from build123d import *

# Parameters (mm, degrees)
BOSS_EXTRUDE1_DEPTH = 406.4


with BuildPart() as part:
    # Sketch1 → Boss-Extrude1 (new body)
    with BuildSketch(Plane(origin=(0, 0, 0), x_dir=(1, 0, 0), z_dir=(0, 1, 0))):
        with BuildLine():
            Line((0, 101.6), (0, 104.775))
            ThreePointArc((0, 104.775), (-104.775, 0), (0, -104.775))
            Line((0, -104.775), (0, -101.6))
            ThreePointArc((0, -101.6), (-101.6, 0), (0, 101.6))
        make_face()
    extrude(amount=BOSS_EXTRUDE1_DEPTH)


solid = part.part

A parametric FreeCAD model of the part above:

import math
import FreeCAD as App
import Part
import Sketcher

V = App.Vector
Q = App.Units.Quantity

doc = App.newDocument("Part")
body = doc.addObject("PartDesign::Body", "Body")

# Sketch on XZ plane
sketch1 = body.newObject("Sketcher::SketchObject", "Sketch")
sketch1.AttachmentSupport = (doc.getObject("XZ_Plane"), [""])
sketch1.MapMode = "FlatFace"
sketch1.addGeometry(Part.LineSegment(V(0, -101.6, 0), V(0, -104.8, 0)), False)
sketch1.addGeometry(Part.ArcOfCircle(Part.Circle(V(0, 0, 0), V(0, 0, 1), 104.8), math.radians(90), math.radians(270)), False)
sketch1.addGeometry(Part.LineSegment(V(0, 104.8, 0), V(0, 101.6, 0)), False)
sketch1.addGeometry(Part.ArcOfCircle(Part.Circle(V(0, 0, 0), V(0, 0, 1), 101.6), math.radians(90), math.radians(270)), False)
sketch1.addConstraint(Sketcher.Constraint("Coincident", 0, 2, 1, 2))
sketch1.addConstraint(Sketcher.Constraint("Coincident", 1, 1, 2, 1))
sketch1.addConstraint(Sketcher.Constraint("Coincident", 2, 2, 3, 1))
sketch1.addConstraint(Sketcher.Constraint("Coincident", 3, 2, 0, 1))
sketch1.addConstraint(Sketcher.Constraint("Vertical", 0))
sketch1.addConstraint(Sketcher.Constraint("Vertical", 2))
sketch1.addConstraint(Sketcher.Constraint("Coincident", 1, 3, -1, 1))
sketch1.addConstraint(Sketcher.Constraint("Coincident", 3, 3, -1, 1))
sketch1.addConstraint(Sketcher.Constraint("PointOnObject", 0, 2, -2))
sketch1.addConstraint(Sketcher.Constraint("PointOnObject", 1, 1, -2))
sketch1.addConstraint(Sketcher.Constraint("Radius", 3, Q("4 in")))
sketch1.addConstraint(Sketcher.Constraint("Radius", 1, Q("4.125 in")))
pad1 = body.newObject("PartDesign::Pad", "Pad")
pad1.Profile = sketch1
pad1.Length = Q("16 in")
pad1.Reversed = True

doc.recompute()
